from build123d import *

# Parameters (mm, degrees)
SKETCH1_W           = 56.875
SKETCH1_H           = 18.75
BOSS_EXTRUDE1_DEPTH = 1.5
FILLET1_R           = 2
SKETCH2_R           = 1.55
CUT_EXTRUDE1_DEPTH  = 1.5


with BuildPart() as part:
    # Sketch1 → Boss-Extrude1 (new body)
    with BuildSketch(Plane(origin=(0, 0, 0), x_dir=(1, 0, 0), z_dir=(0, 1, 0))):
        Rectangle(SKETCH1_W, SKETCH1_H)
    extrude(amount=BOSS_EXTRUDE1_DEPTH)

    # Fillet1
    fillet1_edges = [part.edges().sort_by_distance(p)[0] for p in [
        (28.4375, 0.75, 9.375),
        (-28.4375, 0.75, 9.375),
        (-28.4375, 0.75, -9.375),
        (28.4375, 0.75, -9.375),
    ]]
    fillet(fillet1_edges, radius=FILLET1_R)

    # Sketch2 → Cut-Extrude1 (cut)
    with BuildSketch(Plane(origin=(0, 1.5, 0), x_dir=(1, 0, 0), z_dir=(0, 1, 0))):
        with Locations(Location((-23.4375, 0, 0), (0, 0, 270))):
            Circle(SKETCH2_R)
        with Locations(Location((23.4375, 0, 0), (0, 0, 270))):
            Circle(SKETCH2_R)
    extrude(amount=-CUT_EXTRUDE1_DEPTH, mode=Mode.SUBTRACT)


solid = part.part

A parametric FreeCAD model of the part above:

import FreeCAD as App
import Part
import Sketcher

V = App.Vector
Q = App.Units.Quantity


def edges_at(feature, points):
    """Names of the edges that pass closest to the given points."""
    edges = feature.Shape.Edges
    near = lambda p: min(range(len(edges)), key=lambda i: edges[i].distToShape(Part.Vertex(*p))[0])
    return sorted({f"Edge{near(p) + 1}" for p in points})


def add_polygon(sketch, points):
    """Adds a closed chain of lines whose ends are joined by coincident constraints."""
    first, n = sketch.GeometryCount, len(points)
    for a, b in zip(points, points[1:] + points[:1]):
        sketch.addGeometry(Part.LineSegment(App.Vector(*a, 0), App.Vector(*b, 0)), False)
    for i in range(n):
        sketch.addConstraint(Sketcher.Constraint("Coincident", first + i, 2, first + (i + 1) % n, 1))

doc = App.newDocument("Part")
body = doc.addObject("PartDesign::Body", "Body")

# Sketch on XZ plane
sketch1 = body.newObject("Sketcher::SketchObject", "Sketch")
sketch1.AttachmentSupport = (doc.getObject("XZ_Plane"), [""])
sketch1.MapMode = "FlatFace"
add_polygon(sketch1, [(-28, -9), (-28, 9), (28, 9), (28, -9)])  # lines 0-3
sketch1.addConstraint([
    Sketcher.Constraint("Vertical", 0),
    Sketcher.Constraint("Horizontal", 1),
    Sketcher.Constraint("Vertical", 2),
    Sketcher.Constraint("Horizontal", 3),
    Sketcher.Constraint("Symmetric", 0, 2, 2, 2, -1, 1),
    Sketcher.Constraint("DistanceY", 0, 1, 0, 2, Q("18.75 mm")),
    Sketcher.Constraint("DistanceX", 1, 1, 1, 2, Q("56.875 mm")),
])
pad1 = body.newObject("PartDesign::Pad", "Pad")
pad1.Profile = sketch1
pad1.Length = 1.5
pad1.Reversed = True
doc.recompute()

fillet = body.newObject("PartDesign::Fillet", "Fillet")
fillet.Base = (pad1, edges_at(pad1, [
    (28.438, 0.75, 9.375),
    (-28.438, 0.75, 9.375),
    (-28.438, 0.75, -9.375),
    (28.438, 0.75, -9.375),
]))
fillet.Radius = 2

# Sketch on XZ plane
sketch2 = body.newObject("Sketcher::SketchObject", "Sketch001")
sketch2.AttachmentSupport = (doc.getObject("XZ_Plane"), [""])
sketch2.MapMode = "FlatFace"
sketch2.AttachmentOffset = App.Placement(V(0, 0, -1.5), App.Rotation())
sketch2.addGeometry([
    Part.Circle(V(-23.4, 0, 0), V(0, 0, 1), 1.6),
    Part.Circle(V(23.4, 0, 0), V(0, 0, 1), 1.6),
], False)
sketch2.addConstraint([
    Sketcher.Constraint("Equal", 0, 1),
    Sketcher.Constraint("Symmetric", 0, 3, 1, 3, -1, 1),
    Sketcher.Constraint("PointOnObject", 0, 3, -1),
    Sketcher.Constraint("Diameter", 0, Q("3.1 mm")),
    Sketcher.Constraint("DistanceX", 0, 3, 1, 3, Q("46.875 mm")),
])
pocket1 = body.newObject("PartDesign::Pocket", "Pocket")
pocket1.Profile = sketch2
pocket1.Length = 1.5
pocket1.Reversed = True

doc.recompute()
